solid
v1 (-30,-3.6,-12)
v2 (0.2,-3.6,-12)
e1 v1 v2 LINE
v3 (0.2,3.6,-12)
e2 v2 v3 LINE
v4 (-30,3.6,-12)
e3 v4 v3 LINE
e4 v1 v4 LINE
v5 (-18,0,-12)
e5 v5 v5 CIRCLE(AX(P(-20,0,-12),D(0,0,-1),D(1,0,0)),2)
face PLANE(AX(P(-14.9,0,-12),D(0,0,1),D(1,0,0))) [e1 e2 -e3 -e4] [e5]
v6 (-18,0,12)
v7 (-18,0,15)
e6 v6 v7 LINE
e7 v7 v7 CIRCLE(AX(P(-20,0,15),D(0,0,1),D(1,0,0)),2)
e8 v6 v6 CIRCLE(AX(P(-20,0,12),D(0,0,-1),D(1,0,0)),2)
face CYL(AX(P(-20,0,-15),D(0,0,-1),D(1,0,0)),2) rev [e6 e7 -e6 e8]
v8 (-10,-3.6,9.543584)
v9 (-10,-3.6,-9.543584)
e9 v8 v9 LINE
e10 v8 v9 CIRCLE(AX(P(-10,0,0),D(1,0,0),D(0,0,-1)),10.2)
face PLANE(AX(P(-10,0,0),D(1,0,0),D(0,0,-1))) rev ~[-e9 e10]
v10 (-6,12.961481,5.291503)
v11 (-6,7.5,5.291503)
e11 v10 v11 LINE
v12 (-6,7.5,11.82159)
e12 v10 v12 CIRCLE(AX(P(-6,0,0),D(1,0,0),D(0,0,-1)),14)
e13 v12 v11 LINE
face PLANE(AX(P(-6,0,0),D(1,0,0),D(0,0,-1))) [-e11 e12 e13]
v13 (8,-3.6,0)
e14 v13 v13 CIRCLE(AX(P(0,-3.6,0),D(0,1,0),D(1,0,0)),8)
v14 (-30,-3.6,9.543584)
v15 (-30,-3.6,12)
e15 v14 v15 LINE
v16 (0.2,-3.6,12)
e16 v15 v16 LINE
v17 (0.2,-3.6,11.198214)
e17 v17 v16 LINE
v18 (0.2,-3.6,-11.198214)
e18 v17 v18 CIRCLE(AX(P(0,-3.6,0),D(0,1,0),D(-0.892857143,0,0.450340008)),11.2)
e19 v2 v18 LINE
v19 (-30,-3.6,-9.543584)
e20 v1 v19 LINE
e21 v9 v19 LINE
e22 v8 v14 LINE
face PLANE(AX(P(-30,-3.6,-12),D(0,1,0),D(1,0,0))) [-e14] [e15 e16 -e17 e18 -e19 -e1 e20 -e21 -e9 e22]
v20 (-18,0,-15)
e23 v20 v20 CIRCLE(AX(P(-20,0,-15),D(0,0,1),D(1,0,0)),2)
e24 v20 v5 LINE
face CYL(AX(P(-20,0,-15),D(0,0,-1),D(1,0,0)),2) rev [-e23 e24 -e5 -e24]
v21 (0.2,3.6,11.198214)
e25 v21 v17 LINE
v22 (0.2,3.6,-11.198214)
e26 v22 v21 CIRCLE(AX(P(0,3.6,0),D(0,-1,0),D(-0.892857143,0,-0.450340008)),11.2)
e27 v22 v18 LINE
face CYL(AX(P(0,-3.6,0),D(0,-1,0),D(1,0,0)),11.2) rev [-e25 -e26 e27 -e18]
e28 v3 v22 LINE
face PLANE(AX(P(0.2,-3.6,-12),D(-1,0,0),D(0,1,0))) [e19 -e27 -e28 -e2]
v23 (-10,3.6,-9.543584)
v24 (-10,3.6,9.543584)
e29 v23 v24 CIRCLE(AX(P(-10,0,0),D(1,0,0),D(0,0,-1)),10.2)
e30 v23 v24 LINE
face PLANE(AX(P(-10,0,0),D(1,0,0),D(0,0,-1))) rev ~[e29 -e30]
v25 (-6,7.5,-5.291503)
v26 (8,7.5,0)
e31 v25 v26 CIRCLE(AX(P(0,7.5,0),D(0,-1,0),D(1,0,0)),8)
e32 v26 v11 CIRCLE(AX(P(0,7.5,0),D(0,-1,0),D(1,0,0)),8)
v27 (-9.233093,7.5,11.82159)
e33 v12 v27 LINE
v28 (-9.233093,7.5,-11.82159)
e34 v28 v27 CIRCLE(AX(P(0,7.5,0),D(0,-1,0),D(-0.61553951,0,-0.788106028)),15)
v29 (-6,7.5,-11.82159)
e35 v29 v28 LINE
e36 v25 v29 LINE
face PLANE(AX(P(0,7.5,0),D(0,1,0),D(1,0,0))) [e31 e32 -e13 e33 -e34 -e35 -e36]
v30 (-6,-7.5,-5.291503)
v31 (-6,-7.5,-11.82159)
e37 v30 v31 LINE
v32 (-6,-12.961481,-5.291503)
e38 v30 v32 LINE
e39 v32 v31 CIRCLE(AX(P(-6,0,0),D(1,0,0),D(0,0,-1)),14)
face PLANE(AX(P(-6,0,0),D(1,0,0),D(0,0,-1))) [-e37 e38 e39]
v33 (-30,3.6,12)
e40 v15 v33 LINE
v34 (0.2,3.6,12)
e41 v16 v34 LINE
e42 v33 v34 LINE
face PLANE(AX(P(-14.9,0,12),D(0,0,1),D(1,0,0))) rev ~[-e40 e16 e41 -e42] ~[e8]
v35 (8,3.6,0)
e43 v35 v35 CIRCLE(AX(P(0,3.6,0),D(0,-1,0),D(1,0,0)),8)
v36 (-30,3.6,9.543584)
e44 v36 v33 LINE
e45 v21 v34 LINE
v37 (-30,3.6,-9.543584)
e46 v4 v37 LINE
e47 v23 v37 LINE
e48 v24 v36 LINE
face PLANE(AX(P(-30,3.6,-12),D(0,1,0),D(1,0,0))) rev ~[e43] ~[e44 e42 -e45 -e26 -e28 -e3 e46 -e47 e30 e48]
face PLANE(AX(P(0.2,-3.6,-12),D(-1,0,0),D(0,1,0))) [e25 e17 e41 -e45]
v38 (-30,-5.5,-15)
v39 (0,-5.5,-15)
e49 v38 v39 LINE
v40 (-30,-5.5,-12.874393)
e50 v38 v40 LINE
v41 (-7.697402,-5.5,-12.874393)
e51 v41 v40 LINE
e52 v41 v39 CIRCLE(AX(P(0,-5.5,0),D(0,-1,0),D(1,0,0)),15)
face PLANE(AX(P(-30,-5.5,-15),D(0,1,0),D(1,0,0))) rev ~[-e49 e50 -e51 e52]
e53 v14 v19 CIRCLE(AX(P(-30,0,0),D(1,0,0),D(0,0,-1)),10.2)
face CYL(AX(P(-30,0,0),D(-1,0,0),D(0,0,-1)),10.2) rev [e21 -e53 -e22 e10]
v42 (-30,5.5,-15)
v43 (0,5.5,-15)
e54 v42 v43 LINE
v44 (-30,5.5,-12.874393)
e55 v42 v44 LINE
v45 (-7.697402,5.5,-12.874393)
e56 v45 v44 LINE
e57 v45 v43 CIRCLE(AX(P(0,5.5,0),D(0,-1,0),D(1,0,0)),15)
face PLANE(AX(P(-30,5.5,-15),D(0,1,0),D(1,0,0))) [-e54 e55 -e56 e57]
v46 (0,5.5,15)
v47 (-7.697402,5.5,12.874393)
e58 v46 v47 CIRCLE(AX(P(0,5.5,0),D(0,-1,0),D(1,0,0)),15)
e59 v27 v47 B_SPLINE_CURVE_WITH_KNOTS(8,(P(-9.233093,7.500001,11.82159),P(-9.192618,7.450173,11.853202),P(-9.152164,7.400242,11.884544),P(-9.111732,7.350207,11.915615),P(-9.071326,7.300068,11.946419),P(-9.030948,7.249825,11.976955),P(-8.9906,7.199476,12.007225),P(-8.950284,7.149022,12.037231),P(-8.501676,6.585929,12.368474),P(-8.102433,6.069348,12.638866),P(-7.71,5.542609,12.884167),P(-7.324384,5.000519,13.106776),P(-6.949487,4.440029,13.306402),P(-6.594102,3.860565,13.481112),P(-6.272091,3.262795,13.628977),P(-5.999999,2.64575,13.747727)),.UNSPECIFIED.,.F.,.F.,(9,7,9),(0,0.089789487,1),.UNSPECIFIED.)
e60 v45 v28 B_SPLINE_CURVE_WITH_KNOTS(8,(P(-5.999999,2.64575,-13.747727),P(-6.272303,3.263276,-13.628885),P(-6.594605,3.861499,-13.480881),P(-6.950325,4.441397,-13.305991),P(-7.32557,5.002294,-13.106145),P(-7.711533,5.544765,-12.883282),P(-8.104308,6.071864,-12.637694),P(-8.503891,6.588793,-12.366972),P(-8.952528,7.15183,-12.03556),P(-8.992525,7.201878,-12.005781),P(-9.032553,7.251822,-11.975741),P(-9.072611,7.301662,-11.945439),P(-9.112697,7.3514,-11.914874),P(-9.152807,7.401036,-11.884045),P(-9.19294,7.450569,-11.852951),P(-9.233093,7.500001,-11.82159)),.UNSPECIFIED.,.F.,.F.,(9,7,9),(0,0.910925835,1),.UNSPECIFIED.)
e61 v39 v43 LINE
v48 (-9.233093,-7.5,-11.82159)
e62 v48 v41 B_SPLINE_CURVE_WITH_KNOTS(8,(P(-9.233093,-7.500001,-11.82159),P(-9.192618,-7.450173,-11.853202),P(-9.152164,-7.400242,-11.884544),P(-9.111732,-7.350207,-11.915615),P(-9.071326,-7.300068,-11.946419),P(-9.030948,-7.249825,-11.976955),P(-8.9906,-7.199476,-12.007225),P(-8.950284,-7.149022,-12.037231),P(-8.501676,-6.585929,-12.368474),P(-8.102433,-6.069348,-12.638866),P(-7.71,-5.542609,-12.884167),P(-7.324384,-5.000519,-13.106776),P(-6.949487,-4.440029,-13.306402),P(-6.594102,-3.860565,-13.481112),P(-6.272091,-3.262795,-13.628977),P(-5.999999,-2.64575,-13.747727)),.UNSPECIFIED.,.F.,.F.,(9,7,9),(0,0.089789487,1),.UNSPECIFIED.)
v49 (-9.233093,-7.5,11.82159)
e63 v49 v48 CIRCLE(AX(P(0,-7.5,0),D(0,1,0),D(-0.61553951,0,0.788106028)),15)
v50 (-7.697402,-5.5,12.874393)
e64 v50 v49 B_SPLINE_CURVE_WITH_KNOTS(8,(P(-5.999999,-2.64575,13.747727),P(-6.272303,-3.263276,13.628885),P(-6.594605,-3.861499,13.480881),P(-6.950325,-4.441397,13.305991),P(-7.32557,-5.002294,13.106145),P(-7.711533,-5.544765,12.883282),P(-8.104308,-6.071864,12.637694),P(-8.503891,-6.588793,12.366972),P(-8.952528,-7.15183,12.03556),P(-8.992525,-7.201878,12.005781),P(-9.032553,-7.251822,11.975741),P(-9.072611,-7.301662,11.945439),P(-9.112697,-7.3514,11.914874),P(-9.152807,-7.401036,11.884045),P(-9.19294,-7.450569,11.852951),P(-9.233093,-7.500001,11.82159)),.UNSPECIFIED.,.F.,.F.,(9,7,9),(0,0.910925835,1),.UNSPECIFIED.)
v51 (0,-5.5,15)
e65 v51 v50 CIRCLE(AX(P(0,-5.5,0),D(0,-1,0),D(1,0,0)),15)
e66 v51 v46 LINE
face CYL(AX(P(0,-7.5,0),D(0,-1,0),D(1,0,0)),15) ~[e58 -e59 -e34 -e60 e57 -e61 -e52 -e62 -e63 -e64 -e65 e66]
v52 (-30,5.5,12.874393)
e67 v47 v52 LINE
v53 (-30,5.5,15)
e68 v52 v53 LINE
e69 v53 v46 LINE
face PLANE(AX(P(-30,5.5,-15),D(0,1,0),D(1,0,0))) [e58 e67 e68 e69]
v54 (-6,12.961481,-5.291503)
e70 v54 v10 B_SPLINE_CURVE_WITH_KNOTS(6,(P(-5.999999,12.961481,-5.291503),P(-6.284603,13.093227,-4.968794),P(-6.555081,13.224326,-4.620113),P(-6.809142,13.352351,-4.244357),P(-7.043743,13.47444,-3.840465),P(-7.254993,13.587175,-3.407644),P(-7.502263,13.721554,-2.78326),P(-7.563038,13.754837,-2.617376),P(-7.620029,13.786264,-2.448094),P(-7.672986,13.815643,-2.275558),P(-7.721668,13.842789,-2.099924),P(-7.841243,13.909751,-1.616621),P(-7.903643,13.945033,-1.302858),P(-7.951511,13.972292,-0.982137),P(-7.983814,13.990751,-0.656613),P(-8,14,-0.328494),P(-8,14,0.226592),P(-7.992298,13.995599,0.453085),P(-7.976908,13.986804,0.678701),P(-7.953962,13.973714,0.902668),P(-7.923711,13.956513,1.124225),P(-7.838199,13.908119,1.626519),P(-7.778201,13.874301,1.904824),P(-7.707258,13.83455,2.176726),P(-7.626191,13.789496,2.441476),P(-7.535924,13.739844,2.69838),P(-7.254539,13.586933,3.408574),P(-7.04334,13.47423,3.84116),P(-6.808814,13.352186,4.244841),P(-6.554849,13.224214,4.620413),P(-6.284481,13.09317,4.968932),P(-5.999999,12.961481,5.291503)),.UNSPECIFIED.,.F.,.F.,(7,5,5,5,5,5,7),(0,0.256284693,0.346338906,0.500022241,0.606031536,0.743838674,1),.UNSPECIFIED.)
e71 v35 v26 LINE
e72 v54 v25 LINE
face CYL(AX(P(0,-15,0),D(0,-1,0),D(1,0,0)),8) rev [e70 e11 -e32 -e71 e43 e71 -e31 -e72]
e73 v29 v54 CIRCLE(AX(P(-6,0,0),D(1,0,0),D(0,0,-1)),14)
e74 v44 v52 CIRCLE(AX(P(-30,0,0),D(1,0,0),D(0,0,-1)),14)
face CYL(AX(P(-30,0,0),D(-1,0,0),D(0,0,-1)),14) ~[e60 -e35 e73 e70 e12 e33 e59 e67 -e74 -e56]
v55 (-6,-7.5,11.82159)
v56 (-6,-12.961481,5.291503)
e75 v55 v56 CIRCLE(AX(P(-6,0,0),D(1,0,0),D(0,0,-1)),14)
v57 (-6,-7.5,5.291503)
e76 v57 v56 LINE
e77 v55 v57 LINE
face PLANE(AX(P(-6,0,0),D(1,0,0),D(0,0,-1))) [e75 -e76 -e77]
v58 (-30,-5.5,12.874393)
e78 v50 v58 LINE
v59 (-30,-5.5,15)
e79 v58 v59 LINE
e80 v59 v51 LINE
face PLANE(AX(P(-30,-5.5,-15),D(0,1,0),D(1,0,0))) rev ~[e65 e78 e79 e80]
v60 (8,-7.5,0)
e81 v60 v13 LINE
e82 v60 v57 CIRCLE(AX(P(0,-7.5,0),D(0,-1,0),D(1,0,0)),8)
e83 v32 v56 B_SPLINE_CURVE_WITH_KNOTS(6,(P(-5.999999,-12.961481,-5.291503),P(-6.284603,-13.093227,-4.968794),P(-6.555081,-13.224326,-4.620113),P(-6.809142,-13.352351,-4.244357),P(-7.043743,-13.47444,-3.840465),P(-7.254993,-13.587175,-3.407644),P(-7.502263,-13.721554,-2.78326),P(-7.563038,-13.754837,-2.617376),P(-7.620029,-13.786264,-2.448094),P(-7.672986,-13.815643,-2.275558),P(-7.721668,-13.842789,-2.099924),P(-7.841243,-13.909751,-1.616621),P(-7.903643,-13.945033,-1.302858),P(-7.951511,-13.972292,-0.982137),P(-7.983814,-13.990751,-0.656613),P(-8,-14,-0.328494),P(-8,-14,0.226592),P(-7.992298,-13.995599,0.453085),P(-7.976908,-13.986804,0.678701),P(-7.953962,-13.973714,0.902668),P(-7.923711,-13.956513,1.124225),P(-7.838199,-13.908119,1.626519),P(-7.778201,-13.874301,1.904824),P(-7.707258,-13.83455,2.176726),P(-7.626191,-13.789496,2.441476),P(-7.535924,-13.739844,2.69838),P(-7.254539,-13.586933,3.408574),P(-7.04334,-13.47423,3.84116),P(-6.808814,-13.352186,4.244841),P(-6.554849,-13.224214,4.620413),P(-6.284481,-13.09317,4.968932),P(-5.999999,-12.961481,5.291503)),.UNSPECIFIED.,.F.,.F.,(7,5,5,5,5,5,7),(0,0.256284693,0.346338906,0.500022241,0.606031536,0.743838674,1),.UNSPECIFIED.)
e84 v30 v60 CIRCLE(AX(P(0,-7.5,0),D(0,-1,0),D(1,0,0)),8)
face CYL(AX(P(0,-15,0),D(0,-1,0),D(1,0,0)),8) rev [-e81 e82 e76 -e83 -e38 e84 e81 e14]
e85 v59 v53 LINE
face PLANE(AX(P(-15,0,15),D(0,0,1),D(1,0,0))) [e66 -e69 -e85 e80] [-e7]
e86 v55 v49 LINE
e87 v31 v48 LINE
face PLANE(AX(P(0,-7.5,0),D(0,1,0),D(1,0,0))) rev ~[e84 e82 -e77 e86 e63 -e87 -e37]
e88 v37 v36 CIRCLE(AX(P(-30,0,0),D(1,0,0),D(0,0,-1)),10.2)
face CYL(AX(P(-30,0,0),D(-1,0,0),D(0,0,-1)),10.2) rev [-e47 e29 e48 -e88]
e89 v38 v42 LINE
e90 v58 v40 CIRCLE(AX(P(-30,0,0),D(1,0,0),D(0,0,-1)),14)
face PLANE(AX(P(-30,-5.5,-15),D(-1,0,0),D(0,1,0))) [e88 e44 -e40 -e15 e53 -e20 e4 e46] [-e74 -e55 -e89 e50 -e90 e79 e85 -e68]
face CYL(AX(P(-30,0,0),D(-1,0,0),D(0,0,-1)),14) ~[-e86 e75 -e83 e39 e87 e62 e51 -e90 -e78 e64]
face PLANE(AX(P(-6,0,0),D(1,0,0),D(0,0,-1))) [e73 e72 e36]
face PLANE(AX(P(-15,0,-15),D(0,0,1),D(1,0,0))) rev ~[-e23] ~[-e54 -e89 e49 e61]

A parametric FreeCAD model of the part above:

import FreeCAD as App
import Part
import Sketcher

V = App.Vector
Q = App.Units.Quantity


def add_polygon(sketch, points):
    """Adds a closed chain of lines whose ends are joined by coincident constraints."""
    first, n = sketch.GeometryCount, len(points)
    for a, b in zip(points, points[1:] + points[:1]):
        sketch.addGeometry(Part.LineSegment(App.Vector(*a, 0), App.Vector(*b, 0)), False)
    for i in range(n):
        sketch.addConstraint(Sketcher.Constraint("Coincident", first + i, 2, first + (i + 1) % n, 1))

doc = App.newDocument("Part")
body = doc.addObject("PartDesign::Body", "Body")

sketch1 = body.newObject("Sketcher::SketchObject", "Sketch")
sketch1.AttachmentSupport = (doc.getObject("XY_Plane"), [""])
sketch1.MapMode = "FlatFace"
sketch1.addGeometry(Part.Circle(V(0, 0, 0), V(0, 0, 1), 10), False)
sketch1.addConstraint([
    Sketcher.Constraint("Coincident", 0, 3, -1, 1),
    Sketcher.Constraint("Diameter", 0, Q("20.4 mm")),
])
pad1 = body.newObject("PartDesign::Pad", "Pad")
pad1.Profile = sketch1
pad1.Length = 20
body2 = doc.addObject("PartDesign::Body", "Body001")
doc.recompute()

body.Placement = App.Placement(V(0, 0, 0), App.Rotation(V(0, 1, 0), 90))
boolean = body2.newObject("PartDesign::Boolean", "Boolean")
boolean.Type = "Fuse"
boolean.addObjects([body])
body3 = doc.addObject("PartDesign::Body", "Body002")
doc.recompute()

body2.Placement = App.Placement(V(-30, 0, 0), App.Rotation(V(0, 0, 1), 0))
boolean2 = body3.newObject("PartDesign::Boolean", "Boolean001")
boolean2.Type = "Fuse"
boolean2.addObjects([body2])
body4 = doc.addObject("PartDesign::Body", "Body003")

sketch2 = body4.newObject("Sketcher::SketchObject", "Sketch001")
sketch2.AttachmentSupport = (doc.getObject("XY_Plane003"), [""])
sketch2.MapMode = "FlatFace"
sketch2.addGeometry(Part.Circle(V(0, 0, 0), V(0, 0, 1), 11), False)
sketch2.addConstraint([
    Sketcher.Constraint("Coincident", 0, 3, -1, 1),
    Sketcher.Constraint("Diameter", 0, Q("22.4 mm")),
])
pad2 = body4.newObject("PartDesign::Pad", "Pad001")
pad2.Profile = sketch2
pad2.Length = 7.2
body5 = doc.addObject("PartDesign::Body", "Body004")
doc.recompute()

body4.Placement = App.Placement(V(0, 0, 0), App.Rotation(V(1, 0, 0), 270))
boolean3 = body5.newObject("PartDesign::Boolean", "Boolean002")
boolean3.Type = "Fuse"
boolean3.addObjects([body4])
body6 = doc.addObject("PartDesign::Body", "Body005")
doc.recompute()

body5.Placement = App.Placement(V(0, -3.6, 0), App.Rotation(V(0, 0, 1), 0))
boolean4 = body6.newObject("PartDesign::Boolean", "Boolean003")
boolean4.Type = "Fuse"
boolean4.addObjects([body5])
body7 = doc.addObject("PartDesign::Body", "Body006")

sketch3 = body7.newObject("Sketcher::SketchObject", "Sketch002")
sketch3.AttachmentSupport = (doc.getObject("XY_Plane006"), [""])
sketch3.MapMode = "FlatFace"
sketch3.AttachmentOffset = App.Placement(V(0, 0, -15), App.Rotation())
sketch3.addGeometry(Part.Circle(V(-20, 0, 0), V(0, 0, 1), 2), False)
sketch3.addConstraint([
    Sketcher.Constraint("PointOnObject", 0, 3, -1),
    Sketcher.Constraint("Diameter", 0, Q("4 mm")),
    Sketcher.Constraint("DistanceX", 0, 3, -1, 1, Q("20 mm")),
])
pad3 = body7.newObject("PartDesign::Pad", "Pad002")
pad3.Profile = sketch3
pad3.Length = 30
body8 = doc.addObject("PartDesign::Body", "Body007")

sketch4 = body8.newObject("Sketcher::SketchObject", "Sketch003")
sketch4.AttachmentSupport = (doc.getObject("XY_Plane007"), [""])
sketch4.MapMode = "FlatFace"
sketch4.AttachmentOffset = App.Placement(V(0, 0, -12), App.Rotation())
add_polygon(sketch4, [(-30, 4), (-30, -4), (0, -4), (0, 4)])
sketch4.addConstraint([
    Sketcher.Constraint("Vertical", 0),
    Sketcher.Constraint("Horizontal", 1),
    Sketcher.Constraint("Vertical", 2),
    Sketcher.Constraint("Horizontal", 3),
    Sketcher.Constraint("DistanceX", 1, 1, 1, 2, Q("30.2 mm")),
    Sketcher.Constraint("DistanceY", 0, 2, 0, 1, Q("7.2 mm")),
    Sketcher.Constraint("DistanceX", 0, 2, -1, 1, Q("30 mm")),
    Sketcher.Constraint("DistanceY", 0, 2, -1, 1, Q("3.6 mm")),
])
pad4 = body8.newObject("PartDesign::Pad", "Pad003")
pad4.Profile = sketch4
pad4.Length = 24
body9 = doc.addObject("PartDesign::Body", "Body008")

sketch5 = body9.newObject("Sketcher::SketchObject", "Sketch004")
sketch5.AttachmentSupport = (doc.getObject("XY_Plane008"), [""])
sketch5.MapMode = "FlatFace"
sketch5.addGeometry(Part.Circle(V(0, 0, 0), V(0, 0, 1), 8), False)
sketch5.addConstraint([
    Sketcher.Constraint("Coincident", 0, 3, -1, 1),
    Sketcher.Constraint("Diameter", 0, Q("16 mm")),
])
pad5 = body9.newObject("PartDesign::Pad", "Pad004")
pad5.Profile = sketch5
pad5.Length = 30
body10 = doc.addObject("PartDesign::Body", "Body009")
doc.recompute()

body9.Placement = App.Placement(V(0, 0, 0), App.Rotation(V(1, 0, 0), 270))
boolean5 = body10.newObject("PartDesign::Boolean", "Boolean004")
boolean5.Type = "Fuse"
boolean5.addObjects([body9])
body11 = doc.addObject("PartDesign::Body", "Body010")
body11.AllowCompound = True
doc.recompute()

body10.Placement = App.Placement(V(0, -15, 0), App.Rotation(V(0, 0, 1), 0))
boolean6 = body11.newObject("PartDesign::Boolean", "Boolean005")
boolean6.Type = "Fuse"
boolean6.addObjects([body10])
doc.recompute()

boolean7 = body11.newObject("PartDesign::Boolean", "Boolean006")
boolean7.Type = "Fuse"
boolean7.addObjects([body3])
doc.recompute()

boolean8 = body11.newObject("PartDesign::Boolean", "Boolean007")
boolean8.Type = "Fuse"
boolean8.addObjects([body6])
doc.recompute()

boolean9 = body11.newObject("PartDesign::Boolean", "Boolean008")
boolean9.Type = "Fuse"
boolean9.addObjects([body7])
doc.recompute()

boolean10 = body11.newObject("PartDesign::Boolean", "Boolean009")
boolean10.Type = "Fuse"
boolean10.addObjects([body8])
body12 = doc.addObject("PartDesign::Body", "Body011")

sketch6 = body12.newObject("Sketcher::SketchObject", "Sketch005")
sketch6.AttachmentSupport = (doc.getObject("XY_Plane011"), [""])
sketch6.MapMode = "FlatFace"
sketch6.addGeometry(Part.Circle(V(0, 0, 0), V(0, 0, 1), 14), False)
sketch6.addConstraint([
    Sketcher.Constraint("Coincident", 0, 3, -1, 1),
    Sketcher.Constraint("Diameter", 0, Q("28 mm")),
])
pad6 = body12.newObject("PartDesign::Pad", "Pad005")
pad6.Profile = sketch6
pad6.Length = 24
body13 = doc.addObject("PartDesign::Body", "Body012")
doc.recompute()

body12.Placement = App.Placement(V(0, 0, 0), App.Rotation(V(0, 1, 0), 90))
boolean11 = body13.newObject("PartDesign::Boolean", "Boolean010")
boolean11.Type = "Fuse"
boolean11.addObjects([body12])
body14 = doc.addObject("PartDesign::Body", "Body013")
doc.recompute()

body13.Placement = App.Placement(V(-30, 0, 0), App.Rotation(V(0, 0, 1), 0))
boolean12 = body14.newObject("PartDesign::Boolean", "Boolean011")
boolean12.Type = "Fuse"
boolean12.addObjects([body13])
body15 = doc.addObject("PartDesign::Body", "Body014")

sketch7 = body15.newObject("Sketcher::SketchObject", "Sketch006")
sketch7.AttachmentSupport = (doc.getObject("XY_Plane014"), [""])
sketch7.MapMode = "FlatFace"
sketch7.AttachmentOffset = App.Placement(V(0, 0, -15), App.Rotation())
add_polygon(sketch7, [(-30, 6), (-30, -6), (0, -6), (0, 6)])
sketch7.addConstraint([
    Sketcher.Constraint("Vertical", 0),
    Sketcher.Constraint("Horizontal", 1),
    Sketcher.Constraint("Vertical", 2),
    Sketcher.Constraint("Horizontal", 3),
    Sketcher.Constraint("Symmetric", 1, 2, 2, 2, -1, 1),
    Sketcher.Constraint("DistanceX", 1, 1, 1, 2, Q("30 mm")),
    Sketcher.Constraint("DistanceY", 0, 2, 0, 1, Q("11 mm")),
])
pad7 = body15.newObject("PartDesign::Pad", "Pad006")
pad7.Profile = sketch7
pad7.Length = 30
body16 = doc.addObject("PartDesign::Body", "Body015")

sketch8 = body16.newObject("Sketcher::SketchObject", "Sketch007")
sketch8.AttachmentSupport = (doc.getObject("XY_Plane015"), [""])
sketch8.MapMode = "FlatFace"
sketch8.addGeometry(Part.Circle(V(0, 0, 0), V(0, 0, 1), 15), False)
sketch8.addConstraint([
    Sketcher.Constraint("Coincident", 0, 3, -1, 1),
    Sketcher.Constraint("Diameter", 0, Q("30 mm")),
])
pad8 = body16.newObject("PartDesign::Pad", "Pad007")
pad8.Profile = sketch8
pad8.Length = 15
body17 = doc.addObject("PartDesign::Body", "Body016")
doc.recompute()

body16.Placement = App.Placement(V(0, 0, 0), App.Rotation(V(1, 0, 0), 270))
boolean13 = body17.newObject("PartDesign::Boolean", "Boolean012")
boolean13.Type = "Fuse"
boolean13.addObjects([body16])
body18 = doc.addObject("PartDesign::Body", "Body017")
doc.recompute()

body17.Placement = App.Placement(V(0, -7.5, 0), App.Rotation(V(0, 0, 1), 0))
boolean14 = body18.newObject("PartDesign::Boolean", "Boolean013")
boolean14.Type = "Fuse"
boolean14.addObjects([body17])
doc.recompute()

boolean15 = body18.newObject("PartDesign::Boolean", "Boolean014")
boolean15.Type = "Fuse"
boolean15.addObjects([body14])
doc.recompute()

boolean16 = body18.newObject("PartDesign::Boolean", "Boolean015")
boolean16.Type = "Fuse"
boolean16.addObjects([body15])
doc.recompute()

boolean17 = body18.newObject("PartDesign::Boolean", "Boolean016")
boolean17.Type = "Cut"
boolean17.addObjects([body11])

doc.recompute()
